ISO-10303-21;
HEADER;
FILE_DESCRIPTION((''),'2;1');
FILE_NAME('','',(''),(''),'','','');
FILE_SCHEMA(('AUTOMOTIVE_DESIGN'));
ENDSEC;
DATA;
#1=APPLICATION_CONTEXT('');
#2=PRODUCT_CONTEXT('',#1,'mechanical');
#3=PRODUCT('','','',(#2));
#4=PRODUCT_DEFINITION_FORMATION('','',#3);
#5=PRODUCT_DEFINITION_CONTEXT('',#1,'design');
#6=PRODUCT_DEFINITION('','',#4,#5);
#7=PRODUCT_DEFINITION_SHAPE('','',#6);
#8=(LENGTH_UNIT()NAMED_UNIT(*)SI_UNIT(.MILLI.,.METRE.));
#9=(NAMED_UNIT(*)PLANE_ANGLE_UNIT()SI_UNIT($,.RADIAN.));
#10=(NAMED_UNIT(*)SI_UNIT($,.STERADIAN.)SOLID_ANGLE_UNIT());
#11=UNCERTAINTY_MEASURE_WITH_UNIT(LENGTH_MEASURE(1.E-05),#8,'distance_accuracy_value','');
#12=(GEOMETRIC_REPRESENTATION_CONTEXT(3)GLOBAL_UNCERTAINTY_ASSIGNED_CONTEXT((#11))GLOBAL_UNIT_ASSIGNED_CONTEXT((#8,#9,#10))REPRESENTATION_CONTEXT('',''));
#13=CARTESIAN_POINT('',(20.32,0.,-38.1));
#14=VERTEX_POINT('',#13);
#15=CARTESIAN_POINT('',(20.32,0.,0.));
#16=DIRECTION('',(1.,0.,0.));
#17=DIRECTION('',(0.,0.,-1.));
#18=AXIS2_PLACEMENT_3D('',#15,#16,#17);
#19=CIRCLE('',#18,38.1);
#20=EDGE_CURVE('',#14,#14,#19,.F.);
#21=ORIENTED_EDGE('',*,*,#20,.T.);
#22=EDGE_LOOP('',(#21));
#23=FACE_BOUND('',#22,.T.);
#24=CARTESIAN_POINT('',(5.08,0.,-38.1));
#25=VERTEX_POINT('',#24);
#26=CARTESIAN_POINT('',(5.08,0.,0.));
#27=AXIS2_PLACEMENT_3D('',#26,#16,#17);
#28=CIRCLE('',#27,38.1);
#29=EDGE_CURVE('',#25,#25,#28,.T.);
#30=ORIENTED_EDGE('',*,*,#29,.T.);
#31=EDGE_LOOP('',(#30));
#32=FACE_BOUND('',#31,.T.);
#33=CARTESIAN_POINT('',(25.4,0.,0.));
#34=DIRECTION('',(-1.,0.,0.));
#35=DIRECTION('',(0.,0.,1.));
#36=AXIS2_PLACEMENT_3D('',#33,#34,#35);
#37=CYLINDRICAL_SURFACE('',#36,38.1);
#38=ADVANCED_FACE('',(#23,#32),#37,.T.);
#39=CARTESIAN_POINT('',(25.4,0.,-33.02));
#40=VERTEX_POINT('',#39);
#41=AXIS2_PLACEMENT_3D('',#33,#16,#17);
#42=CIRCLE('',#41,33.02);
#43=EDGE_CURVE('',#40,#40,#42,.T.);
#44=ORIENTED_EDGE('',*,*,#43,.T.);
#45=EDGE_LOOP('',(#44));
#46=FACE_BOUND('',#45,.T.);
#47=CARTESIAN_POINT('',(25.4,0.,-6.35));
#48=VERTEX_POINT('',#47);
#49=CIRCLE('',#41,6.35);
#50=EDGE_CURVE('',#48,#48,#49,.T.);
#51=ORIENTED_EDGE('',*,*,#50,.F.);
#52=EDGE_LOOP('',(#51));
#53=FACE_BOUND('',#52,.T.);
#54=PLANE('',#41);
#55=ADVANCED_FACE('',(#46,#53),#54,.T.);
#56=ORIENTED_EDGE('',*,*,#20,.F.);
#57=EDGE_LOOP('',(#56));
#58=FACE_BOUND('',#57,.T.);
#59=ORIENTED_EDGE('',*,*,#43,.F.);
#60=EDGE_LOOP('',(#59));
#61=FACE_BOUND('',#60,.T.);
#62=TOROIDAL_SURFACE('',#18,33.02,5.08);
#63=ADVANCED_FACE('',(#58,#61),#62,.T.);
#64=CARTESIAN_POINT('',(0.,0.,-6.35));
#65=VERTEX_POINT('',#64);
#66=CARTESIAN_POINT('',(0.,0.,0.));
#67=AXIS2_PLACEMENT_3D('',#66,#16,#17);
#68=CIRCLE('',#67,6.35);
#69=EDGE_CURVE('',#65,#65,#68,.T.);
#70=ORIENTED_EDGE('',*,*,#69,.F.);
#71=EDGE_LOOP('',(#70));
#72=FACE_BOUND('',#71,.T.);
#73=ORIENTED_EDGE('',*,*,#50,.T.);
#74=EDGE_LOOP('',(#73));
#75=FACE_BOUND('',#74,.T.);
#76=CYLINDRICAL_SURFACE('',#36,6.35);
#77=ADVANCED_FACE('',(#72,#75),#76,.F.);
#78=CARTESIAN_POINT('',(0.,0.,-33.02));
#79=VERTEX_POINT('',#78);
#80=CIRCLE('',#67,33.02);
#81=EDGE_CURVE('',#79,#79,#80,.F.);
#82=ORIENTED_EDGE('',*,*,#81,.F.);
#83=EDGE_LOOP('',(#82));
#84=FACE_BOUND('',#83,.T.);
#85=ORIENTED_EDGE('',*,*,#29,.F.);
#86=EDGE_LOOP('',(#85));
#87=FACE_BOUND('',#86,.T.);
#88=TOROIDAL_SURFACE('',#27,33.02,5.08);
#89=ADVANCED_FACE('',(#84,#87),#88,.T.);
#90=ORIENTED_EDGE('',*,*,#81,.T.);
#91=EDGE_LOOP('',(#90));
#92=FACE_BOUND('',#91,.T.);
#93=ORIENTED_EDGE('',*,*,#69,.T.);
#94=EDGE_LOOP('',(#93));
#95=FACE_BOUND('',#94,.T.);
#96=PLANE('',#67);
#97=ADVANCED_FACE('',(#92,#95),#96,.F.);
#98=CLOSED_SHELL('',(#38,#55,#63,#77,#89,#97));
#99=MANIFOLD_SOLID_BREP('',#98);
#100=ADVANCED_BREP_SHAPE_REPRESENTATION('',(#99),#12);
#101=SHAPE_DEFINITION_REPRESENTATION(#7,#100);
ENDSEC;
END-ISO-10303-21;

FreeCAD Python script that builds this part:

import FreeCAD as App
import Part
import Sketcher

V = App.Vector
Q = App.Units.Quantity


def edges_at(feature, points):
    """Names of the edges that pass closest to the given points."""
    edges = feature.Shape.Edges
    near = lambda p: min(range(len(edges)), key=lambda i: edges[i].distToShape(Part.Vertex(*p))[0])
    return sorted({f"Edge{near(p) + 1}" for p in points})

doc = App.newDocument("Part")
body = doc.addObject("PartDesign::Body", "Body")

sketch1 = doc.addObject("Sketcher::SketchObject", "Sketch")
body.addObject(sketch1)
sketch1.AttachmentSupport = (doc.YZ_Plane, [""])
sketch1.MapMode = "FlatFace"
sketch1.addGeometry([
    Part.Circle(V(0, 0, 0), V(0, 0, 1), 38),
    Part.Circle(V(0, 0, 0), V(0, 0, 1), 6),
], False)
sketch1.addConstraint([
    Sketcher.Constraint("Coincident", 0, 3, -1, 1),
    Sketcher.Constraint("Coincident", 1, 3, -1, 1),
    Sketcher.Constraint("Diameter", 0, Q("3 in")),
    Sketcher.Constraint("Diameter", 1, Q("0.5 in")),
])
pad1 = doc.addObject("PartDesign::Pad", "Pad")
body.addObject(pad1)
pad1.Profile = sketch1
pad1.Length = Q("1 in")
doc.recompute()

fillet = doc.addObject("PartDesign::Fillet", "Fillet")
body.addObject(fillet)
fillet.Base = (pad1, edges_at(pad1, [(0, 0, 38.1), (25.4, 0, 38.1)]))
fillet.Radius = Q("0.2 in")

doc.recompute()
